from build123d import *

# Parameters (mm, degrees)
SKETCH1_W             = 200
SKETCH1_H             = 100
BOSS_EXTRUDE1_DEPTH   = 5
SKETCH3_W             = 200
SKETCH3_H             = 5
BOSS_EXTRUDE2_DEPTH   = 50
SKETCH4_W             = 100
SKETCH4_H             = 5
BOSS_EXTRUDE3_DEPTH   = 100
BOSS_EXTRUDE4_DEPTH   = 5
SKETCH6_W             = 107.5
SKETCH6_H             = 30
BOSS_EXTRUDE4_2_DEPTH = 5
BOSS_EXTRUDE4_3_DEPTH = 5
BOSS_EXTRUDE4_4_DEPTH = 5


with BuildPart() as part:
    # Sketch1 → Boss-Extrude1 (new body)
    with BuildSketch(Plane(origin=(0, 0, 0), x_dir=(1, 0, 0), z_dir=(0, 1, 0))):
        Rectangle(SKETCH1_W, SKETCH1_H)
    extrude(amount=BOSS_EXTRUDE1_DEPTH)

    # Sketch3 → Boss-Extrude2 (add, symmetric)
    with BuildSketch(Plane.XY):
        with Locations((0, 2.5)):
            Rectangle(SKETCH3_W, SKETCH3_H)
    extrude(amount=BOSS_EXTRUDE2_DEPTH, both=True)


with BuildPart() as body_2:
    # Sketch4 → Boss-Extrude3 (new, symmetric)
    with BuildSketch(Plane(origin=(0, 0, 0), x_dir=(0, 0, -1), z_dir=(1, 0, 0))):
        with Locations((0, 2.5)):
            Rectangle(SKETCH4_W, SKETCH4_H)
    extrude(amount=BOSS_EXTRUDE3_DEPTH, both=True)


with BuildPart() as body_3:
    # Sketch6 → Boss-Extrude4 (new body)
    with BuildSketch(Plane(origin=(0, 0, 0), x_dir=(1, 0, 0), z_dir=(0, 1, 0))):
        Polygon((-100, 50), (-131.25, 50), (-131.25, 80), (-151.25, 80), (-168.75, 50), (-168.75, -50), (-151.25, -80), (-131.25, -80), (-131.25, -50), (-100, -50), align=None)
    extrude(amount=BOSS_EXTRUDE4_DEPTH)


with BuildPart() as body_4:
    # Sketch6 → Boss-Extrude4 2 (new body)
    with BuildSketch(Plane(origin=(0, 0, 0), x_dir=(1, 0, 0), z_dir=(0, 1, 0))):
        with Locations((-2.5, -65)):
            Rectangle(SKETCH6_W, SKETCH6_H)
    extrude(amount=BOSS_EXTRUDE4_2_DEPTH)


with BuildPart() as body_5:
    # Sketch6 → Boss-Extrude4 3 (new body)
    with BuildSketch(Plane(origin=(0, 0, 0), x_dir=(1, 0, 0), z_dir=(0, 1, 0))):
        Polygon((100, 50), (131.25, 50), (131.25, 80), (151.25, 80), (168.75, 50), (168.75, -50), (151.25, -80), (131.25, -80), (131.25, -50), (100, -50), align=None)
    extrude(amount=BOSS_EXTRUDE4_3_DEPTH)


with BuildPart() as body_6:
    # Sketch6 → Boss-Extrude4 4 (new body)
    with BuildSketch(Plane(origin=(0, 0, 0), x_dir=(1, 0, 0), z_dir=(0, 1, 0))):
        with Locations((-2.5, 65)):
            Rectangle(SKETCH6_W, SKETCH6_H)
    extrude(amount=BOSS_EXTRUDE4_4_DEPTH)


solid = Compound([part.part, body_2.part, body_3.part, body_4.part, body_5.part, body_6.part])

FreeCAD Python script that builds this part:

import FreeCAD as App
import Part
import Sketcher
Q = App.Units.Quantity


def add_polygon(sketch, points):
    """Adds a closed chain of lines whose ends are joined by coincident constraints."""
    first, n = sketch.GeometryCount, len(points)
    for a, b in zip(points, points[1:] + points[:1]):
        sketch.addGeometry(Part.LineSegment(App.Vector(*a, 0), App.Vector(*b, 0)), False)
    for i in range(n):
        sketch.addConstraint(Sketcher.Constraint("Coincident", first + i, 2, first + (i + 1) % n, 1))

doc = App.newDocument("Part")
body = doc.addObject("PartDesign::Body", "Body")

sketch1 = doc.addObject("Sketcher::SketchObject", "Sketch")
body.addObject(sketch1)
sketch1.AttachmentSupport = (doc.XZ_Plane, [""])
sketch1.MapMode = "FlatFace"
add_polygon(sketch1, [(-100, -50), (-100, 50), (100, 50), (100, -50)])
sketch1.addConstraint(Sketcher.Constraint("Vertical", 0))
sketch1.addConstraint(Sketcher.Constraint("Horizontal", 1))
sketch1.addConstraint(Sketcher.Constraint("Vertical", 2))
sketch1.addConstraint(Sketcher.Constraint("Horizontal", 3))
sketch1.addConstraint(Sketcher.Constraint("Symmetric", 0, 2, 2, 2, -1, 1))
sketch1.addConstraint(Sketcher.Constraint("DistanceX", 1, 1, 1, 2, Q("200 mm")))
sketch1.addConstraint(Sketcher.Constraint("DistanceY", 0, 1, 0, 2, Q("100 mm")))
pad1 = doc.addObject("PartDesign::Pad", "Pad")
body.addObject(pad1)
pad1.Profile = sketch1
pad1.Length = 5
pad1.Reversed = True

sketch2 = doc.addObject("Sketcher::SketchObject", "Sketch001")
body.addObject(sketch2)
sketch2.AttachmentSupport = (doc.XY_Plane, [""])
sketch2.MapMode = "FlatFace"
add_polygon(sketch2, [(-100, 5), (-100, 0), (100, 0), (100, 5)])
sketch2.addConstraint(Sketcher.Constraint("Vertical", 0))
sketch2.addConstraint(Sketcher.Constraint("Horizontal", 1))
sketch2.addConstraint(Sketcher.Constraint("Vertical", 2))
sketch2.addConstraint(Sketcher.Constraint("Horizontal", 3))
sketch2.addConstraint(Sketcher.Constraint("Symmetric", 0, 2, 1, 2, -1, 1))
sketch2.addConstraint(Sketcher.Constraint("DistanceX", 1, 1, 1, 2, Q("200 mm")))
sketch2.addConstraint(Sketcher.Constraint("DistanceY", 0, 2, 0, 1, Q("5 mm")))
pad2 = doc.addObject("PartDesign::Pad", "Pad001")
body.addObject(pad2)
pad2.Profile = sketch2
pad2.Length = 100
pad2.Midplane = True
body2 = doc.addObject("PartDesign::Body", "Body001")

sketch3 = doc.addObject("Sketcher::SketchObject", "Sketch002")
body2.addObject(sketch3)
sketch3.AttachmentSupport = (doc.getObject("YZ_Plane001"), [""])
sketch3.MapMode = "FlatFace"
add_polygon(sketch3, [(5, 50), (0, 50), (0, -50), (5, -50)])
sketch3.addConstraint(Sketcher.Constraint("Horizontal", 0))
sketch3.addConstraint(Sketcher.Constraint("Vertical", 1))
sketch3.addConstraint(Sketcher.Constraint("Horizontal", 2))
sketch3.addConstraint(Sketcher.Constraint("Vertical", 3))
sketch3.addConstraint(Sketcher.Constraint("Symmetric", 0, 2, 1, 2, -1, 1))
sketch3.addConstraint(Sketcher.Constraint("DistanceX", 0, 2, 0, 1, Q("5 mm")))
sketch3.addConstraint(Sketcher.Constraint("DistanceY", 1, 2, 1, 1, Q("100 mm")))
pad3 = doc.addObject("PartDesign::Pad", "Pad002")
body2.addObject(pad3)
pad3.Profile = sketch3
pad3.Length = 200
pad3.Midplane = True
body3 = doc.addObject("PartDesign::Body", "Body002")

sketch4 = doc.addObject("Sketcher::SketchObject", "Sketch003")
body3.addObject(sketch4)
sketch4.AttachmentSupport = (doc.getObject("XZ_Plane002"), [""])
sketch4.MapMode = "FlatFace"
add_polygon(sketch4, [(-100, -50), (-131, -50), (-131, -80), (-151, -80), (-169, -50), (-169, 50), (-151, 80), (-131, 80), (-131, 50), (-100, 50)])
sketch4.addConstraint(Sketcher.Constraint("Horizontal", 0))
sketch4.addConstraint(Sketcher.Constraint("Vertical", 1))
sketch4.addConstraint(Sketcher.Constraint("Horizontal", 2))
sketch4.addConstraint(Sketcher.Constraint("Vertical", 4))
sketch4.addConstraint(Sketcher.Constraint("Horizontal", 6))
sketch4.addConstraint(Sketcher.Constraint("Vertical", 7))
sketch4.addConstraint(Sketcher.Constraint("Horizontal", 8))
sketch4.addConstraint(Sketcher.Constraint("Vertical", 9))
sketch4.addConstraint(Sketcher.Constraint("Symmetric", 2, 2, 5, 2, -1))
sketch4.addConstraint(Sketcher.Constraint("Symmetric", 0, 2, 7, 2, -1))
sketch4.addConstraint(Sketcher.Constraint("Horizontal", 0, 2, 3, 2))
sketch4.addConstraint(Sketcher.Constraint("Horizontal", 4, 2, 7, 2))
sketch4.addConstraint(Sketcher.Constraint("DistanceX", 2, 2, 2, 1, Q("20 mm")))
sketch4.addConstraint(Sketcher.Constraint("DistanceY", 1, 2, 1, 1, Q("30 mm")))
sketch4.addConstraint(Sketcher.Constraint("DistanceY", 4, 1, 4, 2, Q("100 mm")))
sketch4.addConstraint(Sketcher.Constraint("DistanceX", 8, 2, -1, 1, Q("100 mm")))
sketch4.addConstraint(Sketcher.Constraint("DistanceX", 0, 2, 0, 1, Q("31.25 mm")))
sketch4.addConstraint(Sketcher.Constraint("DistanceX", 3, 2, 2, 2, Q("17.5 mm")))
pad4 = doc.addObject("PartDesign::Pad", "Pad003")
body3.addObject(pad4)
pad4.Profile = sketch4
pad4.Length = 5
pad4.Reversed = True
body4 = doc.addObject("PartDesign::Body", "Body003")

sketch5 = doc.addObject("Sketcher::SketchObject", "Sketch004")
body4.addObject(sketch5)
sketch5.AttachmentSupport = (doc.getObject("XZ_Plane003"), [""])
sketch5.MapMode = "FlatFace"
add_polygon(sketch5, [(-56, 50), (-56, 80), (51, 80), (51, 50)])
sketch5.addConstraint(Sketcher.Constraint("Vertical", 0))
sketch5.addConstraint(Sketcher.Constraint("Horizontal", 1))
sketch5.addConstraint(Sketcher.Constraint("Vertical", 2))
sketch5.addConstraint(Sketcher.Constraint("Horizontal", 3))
sketch5.addConstraint(Sketcher.Constraint("DistanceY", 0, 1, 0, 2, Q("30 mm")))
sketch5.addConstraint(Sketcher.Constraint("DistanceX", 1, 1, 1, 2, Q("107.5 mm")))
sketch5.addConstraint(Sketcher.Constraint("DistanceY", -1, 1, 0, 2, Q("80 mm")))
sketch5.addConstraint(Sketcher.Constraint("DistanceX", 0, 2, -1, 1, Q("56.25 mm")))
pad5 = doc.addObject("PartDesign::Pad", "Pad004")
body4.addObject(pad5)
pad5.Profile = sketch5
pad5.Length = 5
pad5.Reversed = True
body5 = doc.addObject("PartDesign::Body", "Body004")

sketch6 = doc.addObject("Sketcher::SketchObject", "Sketch005")
body5.addObject(sketch6)
sketch6.AttachmentSupport = (doc.getObject("XZ_Plane004"), [""])
sketch6.MapMode = "FlatFace"
add_polygon(sketch6, [(131, -50), (100, -50), (100, 50), (131, 50), (131, 80), (151, 80), (169, 50), (169, -50), (151, -80), (131, -80)])
sketch6.addConstraint(Sketcher.Constraint("Horizontal", 0))
sketch6.addConstraint(Sketcher.Constraint("Vertical", 1))
sketch6.addConstraint(Sketcher.Constraint("Horizontal", 2))
sketch6.addConstraint(Sketcher.Constraint("Vertical", 3))
sketch6.addConstraint(Sketcher.Constraint("Horizontal", 4))
sketch6.addConstraint(Sketcher.Constraint("Vertical", 6))
sketch6.addConstraint(Sketcher.Constraint("Horizontal", 8))
sketch6.addConstraint(Sketcher.Constraint("Vertical", 9))
sketch6.addConstraint(Sketcher.Constraint("Symmetric", 4, 2, 7, 2, -1))
sketch6.addConstraint(Sketcher.Constraint("Symmetric", 2, 2, 9, 2, -1))
sketch6.addConstraint(Sketcher.Constraint("Horizontal", 2, 2, 5, 2))
sketch6.addConstraint(Sketcher.Constraint("Horizontal", 0, 2, 6, 2))
sketch6.addConstraint(Sketcher.Constraint("DistanceX", 4, 1, 4, 2, Q("20 mm")))
sketch6.addConstraint(Sketcher.Constraint("DistanceY", 1, 1, 1, 2, Q("100 mm")))
sketch6.addConstraint(Sketcher.Constraint("DistanceY", 3, 1, 3, 2, Q("30 mm")))
sketch6.addConstraint(Sketcher.Constraint("DistanceX", -1, 1, 0, 2, Q("100 mm")))
sketch6.addConstraint(Sketcher.Constraint("DistanceX", 0, 2, 0, 1, Q("31.25 mm")))
sketch6.addConstraint(Sketcher.Constraint("DistanceX", 4, 2, 5, 2, Q("17.5 mm")))
pad6 = doc.addObject("PartDesign::Pad", "Pad005")
body5.addObject(pad6)
pad6.Profile = sketch6
pad6.Length = 5
pad6.Reversed = True
body6 = doc.addObject("PartDesign::Body", "Body005")

sketch7 = doc.addObject("Sketcher::SketchObject", "Sketch006")
body6.addObject(sketch7)
sketch7.AttachmentSupport = (doc.getObject("XZ_Plane005"), [""])
sketch7.MapMode = "FlatFace"
add_polygon(sketch7, [(-56, -80), (-56, -50), (51, -50), (51, -80)])
sketch7.addConstraint(Sketcher.Constraint("Vertical", 0))
sketch7.addConstraint(Sketcher.Constraint("Horizontal", 1))
sketch7.addConstraint(Sketcher.Constraint("Vertical", 2))
sketch7.addConstraint(Sketcher.Constraint("Horizontal", 3))
sketch7.addConstraint(Sketcher.Constraint("DistanceY", 0, 1, 0, 2, Q("30 mm")))
sketch7.addConstraint(Sketcher.Constraint("DistanceX", 1, 1, 1, 2, Q("107.5 mm")))
sketch7.addConstraint(Sketcher.Constraint("DistanceY", 0, 2, -1, 1, Q("50 mm")))
sketch7.addConstraint(Sketcher.Constraint("DistanceX", 0, 2, -1, 1, Q("56.25 mm")))
pad7 = doc.addObject("PartDesign::Pad", "Pad006")
body6.addObject(pad7)
pad7.Profile = sketch7
pad7.Length = 5
pad7.Reversed = True

doc.recompute()
